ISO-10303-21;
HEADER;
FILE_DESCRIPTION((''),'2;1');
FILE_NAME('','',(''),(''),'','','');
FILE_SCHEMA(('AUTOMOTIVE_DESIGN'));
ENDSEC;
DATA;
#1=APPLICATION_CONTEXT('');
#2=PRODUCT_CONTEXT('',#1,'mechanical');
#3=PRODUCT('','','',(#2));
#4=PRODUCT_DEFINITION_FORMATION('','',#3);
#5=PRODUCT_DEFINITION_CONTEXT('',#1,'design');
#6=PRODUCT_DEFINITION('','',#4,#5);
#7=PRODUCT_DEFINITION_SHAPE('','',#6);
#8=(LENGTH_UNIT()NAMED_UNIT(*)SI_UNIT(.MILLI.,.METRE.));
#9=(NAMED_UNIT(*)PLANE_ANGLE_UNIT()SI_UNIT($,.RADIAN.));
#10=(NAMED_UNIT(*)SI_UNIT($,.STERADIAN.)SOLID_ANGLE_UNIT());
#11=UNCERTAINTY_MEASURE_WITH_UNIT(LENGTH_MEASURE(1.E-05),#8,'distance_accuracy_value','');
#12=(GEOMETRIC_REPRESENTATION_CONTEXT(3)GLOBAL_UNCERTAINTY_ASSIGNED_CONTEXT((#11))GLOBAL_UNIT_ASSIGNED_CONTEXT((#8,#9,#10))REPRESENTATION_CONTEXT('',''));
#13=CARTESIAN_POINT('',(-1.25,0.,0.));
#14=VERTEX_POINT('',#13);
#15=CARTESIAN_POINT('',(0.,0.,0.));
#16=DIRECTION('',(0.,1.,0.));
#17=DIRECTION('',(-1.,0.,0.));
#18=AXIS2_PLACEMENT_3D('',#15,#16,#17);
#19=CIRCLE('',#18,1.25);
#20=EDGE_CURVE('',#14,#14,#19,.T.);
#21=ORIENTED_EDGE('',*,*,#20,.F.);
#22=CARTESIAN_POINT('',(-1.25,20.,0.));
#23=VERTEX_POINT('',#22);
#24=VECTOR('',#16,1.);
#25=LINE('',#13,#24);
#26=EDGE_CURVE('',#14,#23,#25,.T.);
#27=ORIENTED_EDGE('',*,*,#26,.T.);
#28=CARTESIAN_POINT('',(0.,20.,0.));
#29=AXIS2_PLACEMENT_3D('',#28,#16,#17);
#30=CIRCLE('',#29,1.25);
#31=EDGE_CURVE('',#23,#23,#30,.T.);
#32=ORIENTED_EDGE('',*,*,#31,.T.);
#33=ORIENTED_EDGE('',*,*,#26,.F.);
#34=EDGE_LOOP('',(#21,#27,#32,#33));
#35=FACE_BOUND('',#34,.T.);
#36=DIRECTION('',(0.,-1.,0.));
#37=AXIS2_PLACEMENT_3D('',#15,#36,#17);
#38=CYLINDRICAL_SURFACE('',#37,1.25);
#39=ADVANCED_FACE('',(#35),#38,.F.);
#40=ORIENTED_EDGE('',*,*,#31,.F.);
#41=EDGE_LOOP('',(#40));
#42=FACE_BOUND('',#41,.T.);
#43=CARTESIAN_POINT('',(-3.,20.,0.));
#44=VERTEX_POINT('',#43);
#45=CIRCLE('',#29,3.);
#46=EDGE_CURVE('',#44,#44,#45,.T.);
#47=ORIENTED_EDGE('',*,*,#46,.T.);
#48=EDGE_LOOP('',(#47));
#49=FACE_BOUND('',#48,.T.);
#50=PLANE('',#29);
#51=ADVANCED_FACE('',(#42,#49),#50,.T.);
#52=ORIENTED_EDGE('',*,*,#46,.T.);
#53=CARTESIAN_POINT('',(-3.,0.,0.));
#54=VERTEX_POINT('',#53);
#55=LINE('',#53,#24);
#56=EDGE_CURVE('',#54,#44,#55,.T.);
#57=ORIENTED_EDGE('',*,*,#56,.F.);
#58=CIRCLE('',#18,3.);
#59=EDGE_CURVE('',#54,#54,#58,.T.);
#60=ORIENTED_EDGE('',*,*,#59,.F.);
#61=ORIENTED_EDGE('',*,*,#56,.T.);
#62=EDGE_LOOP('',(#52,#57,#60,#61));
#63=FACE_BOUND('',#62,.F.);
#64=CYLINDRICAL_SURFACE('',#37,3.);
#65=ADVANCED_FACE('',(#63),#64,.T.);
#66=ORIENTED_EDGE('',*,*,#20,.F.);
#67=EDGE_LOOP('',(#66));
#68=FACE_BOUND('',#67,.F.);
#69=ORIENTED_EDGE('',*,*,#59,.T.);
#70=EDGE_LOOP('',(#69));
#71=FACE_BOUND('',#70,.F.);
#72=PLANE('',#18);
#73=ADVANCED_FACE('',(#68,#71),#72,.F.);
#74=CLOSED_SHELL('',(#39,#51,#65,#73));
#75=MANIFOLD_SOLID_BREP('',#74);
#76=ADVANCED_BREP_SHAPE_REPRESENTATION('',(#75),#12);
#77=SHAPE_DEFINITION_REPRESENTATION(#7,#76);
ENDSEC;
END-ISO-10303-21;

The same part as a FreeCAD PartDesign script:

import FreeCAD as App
import Part
import Sketcher
from FreeCAD import Vector
Q = App.Units.Quantity

doc = App.newDocument("Part")
params = doc.addObject("Spreadsheet::Sheet", "Params")
for row, (alias, value) in enumerate([
    ("sketch1_diameter", "6 mm"),
    ("sketch1_diameter2", "2.5 mm"),
    ("pad1_length", "20 mm"),
], start=1):
    params.set(f"A{row}", alias)
    params.set(f"B{row}", "=" + value)
    params.setAlias(f"B{row}", alias)

body = doc.addObject("PartDesign::Body", "Body")

# Sketch on XZ plane
sketch1 = doc.addObject("Sketcher::SketchObject", "Sketch")
body.addObject(sketch1)
sketch1.AttachmentSupport = (doc.XZ_Plane, [""])
sketch1.MapMode = "FlatFace"
sketch1.addGeometry([
    Part.Circle(Vector(0, 0, 0), Vector(0, 0, 1), 3),
    Part.Circle(Vector(0, 0, 0), Vector(0, 0, 1), 1.2),
], False)
sketch1.addConstraint([
    Sketcher.Constraint("Coincident", 0, 3, -1, 1),
    Sketcher.Constraint("Coincident", 1, 3, -1, 1),
    Sketcher.Constraint("Diameter", 0, Q("6 mm")),
    Sketcher.Constraint("Diameter", 1, Q("2.5 mm")),
])
sketch1.setExpression("Constraints[2]", "Params.sketch1_diameter")
sketch1.setExpression("Constraints[3]", "Params.sketch1_diameter2")
pad1 = doc.addObject("PartDesign::Pad", "Pad")
body.addObject(pad1)
pad1.Profile = sketch1
pad1.setExpression("Length", "Params.pad1_length")
pad1.Reversed = True

doc.recompute()
